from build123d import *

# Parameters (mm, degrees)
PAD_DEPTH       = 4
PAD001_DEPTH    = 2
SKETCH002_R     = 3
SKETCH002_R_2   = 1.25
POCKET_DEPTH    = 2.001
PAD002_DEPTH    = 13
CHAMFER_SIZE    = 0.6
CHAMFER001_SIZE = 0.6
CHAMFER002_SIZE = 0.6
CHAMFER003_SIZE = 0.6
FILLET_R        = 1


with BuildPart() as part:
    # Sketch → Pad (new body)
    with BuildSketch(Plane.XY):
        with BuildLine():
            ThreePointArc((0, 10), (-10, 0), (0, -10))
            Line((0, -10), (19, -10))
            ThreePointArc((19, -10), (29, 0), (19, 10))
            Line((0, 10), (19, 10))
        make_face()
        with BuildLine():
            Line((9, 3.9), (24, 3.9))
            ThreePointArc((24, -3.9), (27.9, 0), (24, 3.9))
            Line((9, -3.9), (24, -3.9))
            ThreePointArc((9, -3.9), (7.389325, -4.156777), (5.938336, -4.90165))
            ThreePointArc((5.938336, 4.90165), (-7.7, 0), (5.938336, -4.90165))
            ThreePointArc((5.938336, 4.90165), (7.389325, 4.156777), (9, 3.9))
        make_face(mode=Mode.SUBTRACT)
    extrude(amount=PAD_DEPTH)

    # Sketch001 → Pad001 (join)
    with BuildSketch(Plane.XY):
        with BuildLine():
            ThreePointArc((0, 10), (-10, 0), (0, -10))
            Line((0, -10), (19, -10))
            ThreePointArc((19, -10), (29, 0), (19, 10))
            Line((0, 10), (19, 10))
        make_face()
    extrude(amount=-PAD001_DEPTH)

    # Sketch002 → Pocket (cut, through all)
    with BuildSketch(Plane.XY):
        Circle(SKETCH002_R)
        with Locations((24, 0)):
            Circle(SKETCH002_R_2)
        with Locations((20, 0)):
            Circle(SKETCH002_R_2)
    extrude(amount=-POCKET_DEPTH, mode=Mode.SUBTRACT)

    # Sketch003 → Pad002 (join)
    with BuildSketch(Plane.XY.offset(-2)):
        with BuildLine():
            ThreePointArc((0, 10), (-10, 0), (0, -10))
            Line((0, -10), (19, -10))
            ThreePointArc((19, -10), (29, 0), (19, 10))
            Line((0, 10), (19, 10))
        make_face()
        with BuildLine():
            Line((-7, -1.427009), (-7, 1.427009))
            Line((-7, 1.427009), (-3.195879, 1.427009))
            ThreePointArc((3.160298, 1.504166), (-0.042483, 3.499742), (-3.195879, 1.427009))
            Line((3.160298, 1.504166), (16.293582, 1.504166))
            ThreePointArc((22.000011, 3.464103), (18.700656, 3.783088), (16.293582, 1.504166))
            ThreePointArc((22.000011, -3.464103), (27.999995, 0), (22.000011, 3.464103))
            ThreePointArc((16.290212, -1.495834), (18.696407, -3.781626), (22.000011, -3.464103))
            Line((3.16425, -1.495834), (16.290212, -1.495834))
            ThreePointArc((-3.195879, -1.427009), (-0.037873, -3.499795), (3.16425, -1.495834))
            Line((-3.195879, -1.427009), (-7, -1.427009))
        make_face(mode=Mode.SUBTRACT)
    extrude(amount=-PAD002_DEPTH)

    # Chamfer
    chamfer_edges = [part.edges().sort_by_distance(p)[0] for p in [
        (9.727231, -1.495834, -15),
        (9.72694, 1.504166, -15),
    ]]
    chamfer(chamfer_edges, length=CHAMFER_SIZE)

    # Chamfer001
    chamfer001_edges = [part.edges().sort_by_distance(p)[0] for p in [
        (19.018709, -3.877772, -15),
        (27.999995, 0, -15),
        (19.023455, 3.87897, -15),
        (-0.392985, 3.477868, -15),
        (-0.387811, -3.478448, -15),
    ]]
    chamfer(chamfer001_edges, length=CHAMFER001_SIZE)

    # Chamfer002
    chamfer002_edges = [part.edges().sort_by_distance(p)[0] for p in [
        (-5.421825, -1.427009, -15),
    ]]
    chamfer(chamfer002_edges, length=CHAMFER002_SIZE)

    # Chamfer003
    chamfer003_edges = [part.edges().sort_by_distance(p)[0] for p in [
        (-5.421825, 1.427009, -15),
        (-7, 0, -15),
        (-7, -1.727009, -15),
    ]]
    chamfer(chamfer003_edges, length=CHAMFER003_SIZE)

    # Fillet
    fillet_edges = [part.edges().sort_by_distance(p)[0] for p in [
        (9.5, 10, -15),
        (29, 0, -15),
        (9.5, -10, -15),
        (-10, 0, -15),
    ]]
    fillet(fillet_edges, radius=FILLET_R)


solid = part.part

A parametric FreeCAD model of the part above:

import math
import FreeCAD as App
import Part
import Sketcher
from FreeCAD import Vector
Q = App.Units.Quantity


def edges_at(feature, points):
    """Names of the edges that pass closest to the given points."""
    edges = feature.Shape.Edges
    near = lambda p: min(range(len(edges)), key=lambda i: edges[i].distToShape(Part.Vertex(*p))[0])
    return sorted({f"Edge{near(p) + 1}" for p in points})

doc = App.newDocument("Part")
body = doc.addObject("PartDesign::Body", "Body")

# Sketch on XY plane
sketch1 = body.newObject("Sketcher::SketchObject", "Sketch")
sketch1.AttachmentSupport = (doc.getObject("XY_Plane"), [""])
sketch1.MapMode = "FlatFace"
sketch1.addGeometry([
    Part.ArcOfCircle(Part.Circle(Vector(0, 0, 0), Vector(0, 0, 1), 10), math.radians(90), math.radians(270)),  # 0
    Part.LineSegment(Vector(0, -10, 0), Vector(19, -10, 0)),  # 1
    Part.ArcOfCircle(Part.Circle(Vector(19, 0, 0), Vector(0, 0, 1), 10), math.radians(-90), math.radians(90)),  # 2
    Part.LineSegment(Vector(19, 10, 0), Vector(0, 10, 0)),  # 3
    Part.ArcOfCircle(Part.Circle(Vector(9, 9.1, 0), Vector(0, 0, 1), 5.2), math.radians(-126), math.radians(-90)),  # 4
    Part.LineSegment(Vector(9, 3.9, 0), Vector(24, 3.9, 0)),  # 5
    Part.ArcOfCircle(Part.Circle(Vector(24, 0, 0), Vector(0, 0, 1), 3.9), math.radians(-90), math.radians(90)),  # 6
    Part.LineSegment(Vector(24, -3.9, 0), Vector(9, -3.9, 0)),  # 7
    Part.ArcOfCircle(Part.Circle(Vector(9, -9.1, 0), Vector(0, 0, 1), 5.2), math.radians(90), math.radians(126)),  # 8
    Part.ArcOfCircle(Part.Circle(Vector(0, 0, 0), Vector(0, 0, 1), 7.7), math.radians(40), math.radians(320)),  # 9
], False)
sketch1.addConstraint([
    Sketcher.Constraint("Tangent", 0, 2, 1, 1),
    Sketcher.Constraint("Tangent", 1, 2, 2, 1),
    Sketcher.Constraint("Tangent", 2, 2, 3, 1),
    Sketcher.Constraint("Tangent", 3, 2, 0, 1),
    Sketcher.Constraint("Tangent", 4, 2, 5, 1),
    Sketcher.Constraint("Tangent", 5, 2, 6, 2),
    Sketcher.Constraint("Tangent", 6, 1, 7, 1),
    Sketcher.Constraint("Tangent", 7, 2, 8, 1),
    Sketcher.Constraint("Coincident", 8, 2, 9, 2),
    Sketcher.Constraint("Coincident", 9, 1, 4, 1),
    Sketcher.Constraint("Horizontal", 1),
    Sketcher.Constraint("Horizontal", 3),
    Sketcher.Constraint("Horizontal", 5),
    Sketcher.Constraint("Horizontal", 7),
    Sketcher.Constraint("Coincident", 0, 3, -1, 1),
    Sketcher.Constraint("Coincident", 9, 3, -1, 1),
    Sketcher.Constraint("Equal", 4, 8),
    Sketcher.Constraint("Symmetric", 4, 3, 8, 3, -1),
    Sketcher.Constraint("Radius", 0, Q("10 mm")),
    Sketcher.Constraint("Radius", 6, Q("3.9 mm")),
    Sketcher.Constraint("Radius", 9, Q("7.7 mm")),
    Sketcher.Constraint("DistanceX", 1, 1, 1, 2, Q("19 mm")),
    Sketcher.Constraint("DistanceX", 5, 1, 5, 2, Q("15 mm")),
    Sketcher.Constraint("DistanceX", -1, 1, 4, 3, Q("9 mm")),
    Sketcher.Constraint("Radius", 4, Q("5.179998 mm")),
])
pad1 = body.newObject("PartDesign::Pad", "Pad")
pad1.Profile = sketch1
pad1.Length = 4

# Sketch on XY plane
sketch2 = body.newObject("Sketcher::SketchObject", "Sketch001")
sketch2.AttachmentSupport = (doc.getObject("XY_Plane"), [""])
sketch2.MapMode = "FlatFace"
sketch2.addGeometry([
    Part.ArcOfCircle(Part.Circle(Vector(0, 0, 0), Vector(0, 0, 1), 10), math.radians(90), math.radians(270)),
    Part.LineSegment(Vector(0, -10, 0), Vector(19, -10, 0)),
    Part.ArcOfCircle(Part.Circle(Vector(19, 0, 0), Vector(0, 0, 1), 10), math.radians(-90), math.radians(90)),
    Part.LineSegment(Vector(19, 10, 0), Vector(0, 10, 0)),
], False)
sketch2.addConstraint([
    Sketcher.Constraint("Tangent", 0, 2, 1, 1),
    Sketcher.Constraint("Tangent", 1, 2, 2, 1),
    Sketcher.Constraint("Tangent", 2, 2, 3, 1),
    Sketcher.Constraint("Tangent", 3, 2, 0, 1),
    Sketcher.Constraint("Horizontal", 1),
    Sketcher.Constraint("Horizontal", 3),
    Sketcher.Constraint("Coincident", 0, 3, -1, 1),
    Sketcher.Constraint("Radius", 0, Q("10 mm")),
    Sketcher.Constraint("DistanceX", 1, 1, 1, 2, Q("19 mm")),
])
pad2 = body.newObject("PartDesign::Pad", "Pad001")
pad2.Profile = sketch2
pad2.Length = 2
pad2.Reversed = True

# Sketch on XY plane
sketch3 = body.newObject("Sketcher::SketchObject", "Sketch002")
sketch3.AttachmentSupport = (doc.getObject("XY_Plane"), [""])
sketch3.MapMode = "FlatFace"
sketch3.addGeometry([
    Part.Circle(Vector(0, 0, 0), Vector(0, 0, 1), 3),
    Part.Circle(Vector(24, 0, 0), Vector(0, 0, 1), 1.2),
    Part.Circle(Vector(20, 0, 0), Vector(0, 0, 1), 1.2),
], False)
sketch3.addConstraint([
    Sketcher.Constraint("Coincident", 0, 3, -1, 1),
    Sketcher.Constraint("Equal", 1, 2),
    Sketcher.Constraint("PointOnObject", 1, 3, -1),
    Sketcher.Constraint("PointOnObject", 2, 3, -1),
    Sketcher.Constraint("Diameter", 0, Q("6 mm")),
    Sketcher.Constraint("Diameter", 1, Q("2.5 mm")),
    Sketcher.Constraint("DistanceX", -1, 1, 1, 3, Q("24 mm")),
    Sketcher.Constraint("DistanceX", -1, 1, 2, 3, Q("20 mm")),
])
pocket1 = body.newObject("PartDesign::Pocket", "Pocket")
pocket1.Profile = sketch3
pocket1.Type = "ThroughAll"

# Sketch on XY plane
sketch4 = body.newObject("Sketcher::SketchObject", "Sketch003")
sketch4.AttachmentSupport = (doc.getObject("XY_Plane"), [""])
sketch4.MapMode = "FlatFace"
sketch4.AttachmentOffset = App.Placement(Vector(0, 0, -2), App.Rotation())
sketch4.addGeometry([
    Part.ArcOfCircle(Part.Circle(Vector(0, 0, 0), Vector(0, 0, 1), 10), math.radians(90), math.radians(270)),  # 0
    Part.LineSegment(Vector(0, -10, 0), Vector(19, -10, 0)),  # 1
    Part.ArcOfCircle(Part.Circle(Vector(19, 0, 0), Vector(0, 0, 1), 10), math.radians(-90), math.radians(90)),  # 2
    Part.LineSegment(Vector(19, 10, 0), Vector(0, 10, 0)),  # 3
    Part.LineSegment(Vector(-3.2, -1.4, 0), Vector(-7, -1.4, 0)),  # 4
    Part.LineSegment(Vector(-7, -1.4, 0), Vector(-7, 1.4, 0)),  # 5
    Part.LineSegment(Vector(-7, 1.4, 0), Vector(-3.2, 1.4, 0)),  # 6
    Part.ArcOfCircle(Part.Circle(Vector(0, 0, 0), Vector(0, 0, 1), 3.5), math.radians(25), math.radians(156)),  # 7
    Part.LineSegment(Vector(3.2, 1.5, 0), Vector(16.3, 1.5, 0)),  # 8
    Part.ArcOfCircle(Part.Circle(Vector(20, 0, 0), Vector(0, 0, 1), 4), math.radians(60), math.radians(158)),  # 9
    Part.ArcOfCircle(Part.Circle(Vector(24, 0, 0), Vector(0, 0, 1), 4), math.radians(-120), math.radians(120)),  # 10
    Part.ArcOfCircle(Part.Circle(Vector(20, 0, 0), Vector(0, 0, 1), 4), math.radians(-158), math.radians(-60)),  # 11
    Part.LineSegment(Vector(16.3, -1.5, 0), Vector(3.2, -1.5, 0)),  # 12
    Part.ArcOfCircle(Part.Circle(Vector(0, 0, 0), Vector(0, 0, 1), 3.5), math.radians(-156), math.radians(-25)),  # 13
], False)
sketch4.addConstraint([
    Sketcher.Constraint("Tangent", 0, 2, 1, 1),
    Sketcher.Constraint("Tangent", 1, 2, 2, 1),
    Sketcher.Constraint("Tangent", 2, 2, 3, 1),
    Sketcher.Constraint("Tangent", 3, 2, 0, 1),
    Sketcher.Constraint("Coincident", 4, 2, 5, 1),
    Sketcher.Constraint("Coincident", 5, 2, 6, 1),
    Sketcher.Constraint("Coincident", 6, 2, 7, 2),
    Sketcher.Constraint("Coincident", 7, 1, 8, 1),
    Sketcher.Constraint("Coincident", 8, 2, 9, 2),
    Sketcher.Constraint("Coincident", 9, 1, 10, 2),
    Sketcher.Constraint("Coincident", 10, 1, 11, 2),
    Sketcher.Constraint("Coincident", 11, 1, 12, 1),
    Sketcher.Constraint("Coincident", 12, 2, 13, 2),
    Sketcher.Constraint("Coincident", 13, 1, 4, 1),
    Sketcher.Constraint("Horizontal", 1),
    Sketcher.Constraint("Horizontal", 3),
    Sketcher.Constraint("Horizontal", 4),
    Sketcher.Constraint("Vertical", 5),
    Sketcher.Constraint("Horizontal", 6),
    Sketcher.Constraint("Horizontal", 8),
    Sketcher.Constraint("Horizontal", 12),
    Sketcher.Constraint("Coincident", 0, 3, -1, 1),
    Sketcher.Constraint("Coincident", 7, 3, -1, 1),
    Sketcher.Constraint("Coincident", 13, 3, -1, 1),
    Sketcher.Constraint("Coincident", 11, 3, 9, 3),
    Sketcher.Constraint("Equal", 9, 11),
    Sketcher.Constraint("Equal", 7, 13),
    Sketcher.Constraint("Symmetric", 9, 1, 10, 1, -1),
    Sketcher.Constraint("Vertical", 6, 2, 13, 1),
    Sketcher.Constraint("Radius", 0, Q("10 mm")),
    Sketcher.Constraint("Radius", 7, Q("3.5 mm")),
    Sketcher.Constraint("DistanceX", 1, 1, 1, 2, Q("19 mm")),
    Sketcher.Constraint("DistanceX", -1, 1, 9, 3, Q("20.000001 mm")),
    Sketcher.Constraint("DistanceX", -1, 1, 10, 3, Q("24 mm")),
    Sketcher.Constraint("DistanceX", 4, 2, -1, 1, Q("7 mm")),
    Sketcher.Constraint("DistanceY", 11, 1, 8, 2, Q("3 mm")),
    Sketcher.Constraint("Radius", 9, Q("4.000007 mm")),
    Sketcher.Constraint("Radius", 10, Q("3.999995 mm")),
    Sketcher.Constraint("DistanceX", 4, 2, 4, 1, Q("3.804121 mm")),
    Sketcher.Constraint("DistanceX", -1, 1, 7, 1, Q("3.160298 mm")),
])
pad3 = body.newObject("PartDesign::Pad", "Pad002")
pad3.Profile = sketch4
pad3.Length = 13
pad3.Reversed = True
doc.recompute()

chamfer = body.newObject("PartDesign::Chamfer", "Chamfer")
chamfer.Base = (pad3, edges_at(pad3, [(9.727, -1.496, -15), (9.727, 1.504, -15)]))
chamfer.Size = 0.6
doc.recompute()

chamfer2 = body.newObject("PartDesign::Chamfer", "Chamfer001")
chamfer2.Base = (chamfer, edges_at(chamfer, [
    (19.019, -3.878, -15),
    (28, 0, -15),
    (19.023, 3.879, -15),
    (-0.393, 3.478, -15),
    (-0.388, -3.478, -15),
]))
chamfer2.Size = 0.6
doc.recompute()

chamfer3 = body.newObject("PartDesign::Chamfer", "Chamfer002")
chamfer3.Base = (chamfer2, edges_at(chamfer2, [(-5.422, -1.427, -15)]))
chamfer3.Size = 0.6
doc.recompute()

chamfer4 = body.newObject("PartDesign::Chamfer", "Chamfer003")
chamfer4.Base = (chamfer3, edges_at(chamfer3, [(-5.422, 1.427, -15), (-7, -0.3, -15), (-7, -0.3, -15)]))
chamfer4.Size = 0.6
doc.recompute()

fillet = body.newObject("PartDesign::Fillet", "Fillet")
fillet.Base = (chamfer4, edges_at(chamfer4, [
    (9.5, 10, -15),
    (29, 0, -15),
    (9.5, -10, -15),
    (-10, 0, -15),
]))
fillet.Radius = 1

doc.recompute()
